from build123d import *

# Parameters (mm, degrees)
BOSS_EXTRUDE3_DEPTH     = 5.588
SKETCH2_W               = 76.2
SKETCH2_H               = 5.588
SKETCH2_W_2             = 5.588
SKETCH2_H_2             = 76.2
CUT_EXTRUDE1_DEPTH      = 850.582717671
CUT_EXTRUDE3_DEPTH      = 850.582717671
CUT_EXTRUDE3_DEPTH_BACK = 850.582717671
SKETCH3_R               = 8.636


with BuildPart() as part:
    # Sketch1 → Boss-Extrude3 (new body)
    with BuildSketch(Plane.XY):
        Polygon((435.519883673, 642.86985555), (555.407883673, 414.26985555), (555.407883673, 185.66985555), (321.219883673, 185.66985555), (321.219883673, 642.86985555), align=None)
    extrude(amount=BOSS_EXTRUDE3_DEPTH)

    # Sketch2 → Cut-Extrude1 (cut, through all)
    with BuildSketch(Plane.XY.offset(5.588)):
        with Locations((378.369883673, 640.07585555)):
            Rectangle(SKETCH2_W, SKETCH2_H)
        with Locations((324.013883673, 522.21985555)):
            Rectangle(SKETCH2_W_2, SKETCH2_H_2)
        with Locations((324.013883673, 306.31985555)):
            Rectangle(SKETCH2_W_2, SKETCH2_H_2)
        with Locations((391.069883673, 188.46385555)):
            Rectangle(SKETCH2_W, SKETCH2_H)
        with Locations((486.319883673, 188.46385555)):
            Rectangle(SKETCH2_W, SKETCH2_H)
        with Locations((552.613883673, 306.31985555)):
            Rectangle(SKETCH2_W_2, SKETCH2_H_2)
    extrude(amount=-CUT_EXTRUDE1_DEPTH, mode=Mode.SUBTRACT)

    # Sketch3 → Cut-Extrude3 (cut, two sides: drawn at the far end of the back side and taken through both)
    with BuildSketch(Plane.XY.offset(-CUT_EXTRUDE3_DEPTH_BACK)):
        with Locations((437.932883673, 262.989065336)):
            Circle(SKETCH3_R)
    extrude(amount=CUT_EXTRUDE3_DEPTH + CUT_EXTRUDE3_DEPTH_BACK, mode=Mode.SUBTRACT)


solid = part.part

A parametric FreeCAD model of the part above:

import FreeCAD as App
import Part
import Sketcher

V = App.Vector
Q = App.Units.Quantity


def add_polygon(sketch, points):
    """Adds a closed chain of lines whose ends are joined by coincident constraints."""
    first, n = sketch.GeometryCount, len(points)
    for a, b in zip(points, points[1:] + points[:1]):
        sketch.addGeometry(Part.LineSegment(App.Vector(*a, 0), App.Vector(*b, 0)), False)
    for i in range(n):
        sketch.addConstraint(Sketcher.Constraint("Coincident", first + i, 2, first + (i + 1) % n, 1))

doc = App.newDocument("Part")
body = doc.addObject("PartDesign::Body", "Body")

sketch1 = body.newObject("Sketcher::SketchObject", "Sketch")
sketch1.AttachmentSupport = (doc.getObject("XY_Plane"), [""])
sketch1.MapMode = "FlatFace"
add_polygon(sketch1, [(555, 414), (436, 643), (321, 643), (321, 186), (555, 186)])
sketch1.addConstraint([
    Sketcher.Constraint("Horizontal", 1),
    Sketcher.Constraint("Vertical", 2),
    Sketcher.Constraint("Horizontal", 3),
    Sketcher.Constraint("Vertical", 4),
    Sketcher.Constraint("DistanceY", 2, 2, 2, 1, Q("18 in")),
    Sketcher.Constraint("DistanceY", 4, 1, 4, 2, Q("9 in")),
    Sketcher.Constraint("DistanceX", 1, 2, 1, 1, Q("4.5 in")),
    Sketcher.Constraint("DistanceX", 3, 1, 3, 2, Q("9.22 in")),
    Sketcher.Constraint("DistanceX", -1, 1, 0, 2, Q("435.519884 mm")),
    Sketcher.Constraint("DistanceY", -1, 1, 0, 2, Q("642.869856 mm")),
])
pad1 = body.newObject("PartDesign::Pad", "Pad")
pad1.Profile = sketch1
pad1.Length = Q("0.22 in")

sketch2 = body.newObject("Sketcher::SketchObject", "Sketch001")
sketch2.AttachmentSupport = (doc.getObject("XY_Plane"), [""])
sketch2.MapMode = "FlatFace"
sketch2.AttachmentOffset = App.Placement(V(0, 0, 0.22 * 25.4), App.Rotation())
add_polygon(sketch2, [(340, 643), (340, 637), (416, 637), (416, 643)])
add_polygon(sketch2, [(321, 560), (321, 484), (327, 484), (327, 560)])
add_polygon(sketch2, [(321, 344), (321, 268), (327, 268), (327, 344)])
add_polygon(sketch2, [(353, 191), (353, 186), (429, 186), (429, 191)])
add_polygon(sketch2, [(448, 191), (448, 186), (524, 186), (524, 191)])
add_polygon(sketch2, [(550, 344), (550, 268), (555, 268), (555, 344)])
sketch2.addConstraint([
    Sketcher.Constraint("Vertical", 0),
    Sketcher.Constraint("Horizontal", 1),
    Sketcher.Constraint("Vertical", 2),
    Sketcher.Constraint("Horizontal", 3),
    Sketcher.Constraint("Vertical", 4),
    Sketcher.Constraint("Horizontal", 5),
    Sketcher.Constraint("Vertical", 6),
    Sketcher.Constraint("Horizontal", 7),
    Sketcher.Constraint("Vertical", 8),
    Sketcher.Constraint("Horizontal", 9),
    Sketcher.Constraint("Vertical", 10),
    Sketcher.Constraint("Horizontal", 11),
    Sketcher.Constraint("Vertical", 12),
    Sketcher.Constraint("Horizontal", 13),
    Sketcher.Constraint("Vertical", 14),
    Sketcher.Constraint("Horizontal", 15),
    Sketcher.Constraint("Vertical", 16),
    Sketcher.Constraint("Horizontal", 17),
    Sketcher.Constraint("Vertical", 18),
    Sketcher.Constraint("Horizontal", 19),
    Sketcher.Constraint("Vertical", 20),
    Sketcher.Constraint("Horizontal", 21),
    Sketcher.Constraint("Vertical", 22),
    Sketcher.Constraint("Horizontal", 23),
    Sketcher.Constraint("Horizontal", 13, 2, 16, 2),
    Sketcher.Constraint("Horizontal", 15, 2, 18, 2),
    Sketcher.Constraint("Horizontal", 9, 2, 20, 2),
    Sketcher.Constraint("Horizontal", 11, 2, 22, 2),
    Sketcher.Constraint("Vertical", 7, 2, 8, 2),
    Sketcher.Constraint("Vertical", 6, 2, 9, 2),
    Sketcher.Constraint("Equal", 3, 13),
    Sketcher.Constraint("Equal", 15, 17),
    Sketcher.Constraint("Equal", 11, 21),
    Sketcher.Constraint("Equal", 23, 0),
    Sketcher.Constraint("Equal", 19, 4),
    Sketcher.Constraint("Equal", 6, 8),
    Sketcher.Constraint("Equal", 2, 12),
    Sketcher.Constraint("DistanceX", 1, 1, 1, 2, Q("3 in")),
    Sketcher.Constraint("DistanceX", 18, 2, 20, 2, Q("1 in")),
    Sketcher.Constraint("DistanceX", 5, 1, 5, 2, Q("0.22 in")),
    Sketcher.Constraint("DistanceY", 8, 2, 4, 2, Q("8.5 in")),
    Sketcher.Constraint("DistanceX", 4, 2, 0, 2, Q("0.75 in")),
    Sketcher.Constraint("DistanceY", 4, 2, 0, 2, Q("6.03 in")),
    Sketcher.Constraint("DistanceX", 9, 2, 12, 2, Q("1.03 in")),
    Sketcher.Constraint("DistanceY", 12, 2, 9, 2, Q("3.25 in")),
    Sketcher.Constraint("DistanceX", 13, 2, 16, 2, Q("0.75 in")),
    Sketcher.Constraint("DistanceX", -1, 1, 0, 2, Q("340.269884 mm")),
    Sketcher.Constraint("DistanceY", -1, 1, 0, 2, Q("637.281856 mm")),
])
pocket1 = body.newObject("PartDesign::Pocket", "Pocket")
pocket1.Profile = sketch2
pocket1.Type = "ThroughAll"

sketch3 = body.newObject("Sketcher::SketchObject", "Sketch002")
sketch3.AttachmentSupport = (doc.getObject("XY_Plane"), [""])
sketch3.MapMode = "FlatFace"
sketch3.addGeometry(Part.Circle(V(438, 263, 0), V(0, 0, 1), 9), False)
sketch3.addConstraint([
    Sketcher.Constraint("Diameter", 0, Q("0.68 in")),
    Sketcher.Constraint("DistanceX", -1, 1, 0, 3, Q("437.932884 mm")),
    Sketcher.Constraint("DistanceY", -1, 1, 0, 3, Q("262.989065 mm")),
])
pocket2 = body.newObject("PartDesign::Pocket", "Pocket001")
pocket2.Profile = sketch3
pocket2.Type = "ThroughAll"
pocket2.Midplane = True

doc.recompute()
